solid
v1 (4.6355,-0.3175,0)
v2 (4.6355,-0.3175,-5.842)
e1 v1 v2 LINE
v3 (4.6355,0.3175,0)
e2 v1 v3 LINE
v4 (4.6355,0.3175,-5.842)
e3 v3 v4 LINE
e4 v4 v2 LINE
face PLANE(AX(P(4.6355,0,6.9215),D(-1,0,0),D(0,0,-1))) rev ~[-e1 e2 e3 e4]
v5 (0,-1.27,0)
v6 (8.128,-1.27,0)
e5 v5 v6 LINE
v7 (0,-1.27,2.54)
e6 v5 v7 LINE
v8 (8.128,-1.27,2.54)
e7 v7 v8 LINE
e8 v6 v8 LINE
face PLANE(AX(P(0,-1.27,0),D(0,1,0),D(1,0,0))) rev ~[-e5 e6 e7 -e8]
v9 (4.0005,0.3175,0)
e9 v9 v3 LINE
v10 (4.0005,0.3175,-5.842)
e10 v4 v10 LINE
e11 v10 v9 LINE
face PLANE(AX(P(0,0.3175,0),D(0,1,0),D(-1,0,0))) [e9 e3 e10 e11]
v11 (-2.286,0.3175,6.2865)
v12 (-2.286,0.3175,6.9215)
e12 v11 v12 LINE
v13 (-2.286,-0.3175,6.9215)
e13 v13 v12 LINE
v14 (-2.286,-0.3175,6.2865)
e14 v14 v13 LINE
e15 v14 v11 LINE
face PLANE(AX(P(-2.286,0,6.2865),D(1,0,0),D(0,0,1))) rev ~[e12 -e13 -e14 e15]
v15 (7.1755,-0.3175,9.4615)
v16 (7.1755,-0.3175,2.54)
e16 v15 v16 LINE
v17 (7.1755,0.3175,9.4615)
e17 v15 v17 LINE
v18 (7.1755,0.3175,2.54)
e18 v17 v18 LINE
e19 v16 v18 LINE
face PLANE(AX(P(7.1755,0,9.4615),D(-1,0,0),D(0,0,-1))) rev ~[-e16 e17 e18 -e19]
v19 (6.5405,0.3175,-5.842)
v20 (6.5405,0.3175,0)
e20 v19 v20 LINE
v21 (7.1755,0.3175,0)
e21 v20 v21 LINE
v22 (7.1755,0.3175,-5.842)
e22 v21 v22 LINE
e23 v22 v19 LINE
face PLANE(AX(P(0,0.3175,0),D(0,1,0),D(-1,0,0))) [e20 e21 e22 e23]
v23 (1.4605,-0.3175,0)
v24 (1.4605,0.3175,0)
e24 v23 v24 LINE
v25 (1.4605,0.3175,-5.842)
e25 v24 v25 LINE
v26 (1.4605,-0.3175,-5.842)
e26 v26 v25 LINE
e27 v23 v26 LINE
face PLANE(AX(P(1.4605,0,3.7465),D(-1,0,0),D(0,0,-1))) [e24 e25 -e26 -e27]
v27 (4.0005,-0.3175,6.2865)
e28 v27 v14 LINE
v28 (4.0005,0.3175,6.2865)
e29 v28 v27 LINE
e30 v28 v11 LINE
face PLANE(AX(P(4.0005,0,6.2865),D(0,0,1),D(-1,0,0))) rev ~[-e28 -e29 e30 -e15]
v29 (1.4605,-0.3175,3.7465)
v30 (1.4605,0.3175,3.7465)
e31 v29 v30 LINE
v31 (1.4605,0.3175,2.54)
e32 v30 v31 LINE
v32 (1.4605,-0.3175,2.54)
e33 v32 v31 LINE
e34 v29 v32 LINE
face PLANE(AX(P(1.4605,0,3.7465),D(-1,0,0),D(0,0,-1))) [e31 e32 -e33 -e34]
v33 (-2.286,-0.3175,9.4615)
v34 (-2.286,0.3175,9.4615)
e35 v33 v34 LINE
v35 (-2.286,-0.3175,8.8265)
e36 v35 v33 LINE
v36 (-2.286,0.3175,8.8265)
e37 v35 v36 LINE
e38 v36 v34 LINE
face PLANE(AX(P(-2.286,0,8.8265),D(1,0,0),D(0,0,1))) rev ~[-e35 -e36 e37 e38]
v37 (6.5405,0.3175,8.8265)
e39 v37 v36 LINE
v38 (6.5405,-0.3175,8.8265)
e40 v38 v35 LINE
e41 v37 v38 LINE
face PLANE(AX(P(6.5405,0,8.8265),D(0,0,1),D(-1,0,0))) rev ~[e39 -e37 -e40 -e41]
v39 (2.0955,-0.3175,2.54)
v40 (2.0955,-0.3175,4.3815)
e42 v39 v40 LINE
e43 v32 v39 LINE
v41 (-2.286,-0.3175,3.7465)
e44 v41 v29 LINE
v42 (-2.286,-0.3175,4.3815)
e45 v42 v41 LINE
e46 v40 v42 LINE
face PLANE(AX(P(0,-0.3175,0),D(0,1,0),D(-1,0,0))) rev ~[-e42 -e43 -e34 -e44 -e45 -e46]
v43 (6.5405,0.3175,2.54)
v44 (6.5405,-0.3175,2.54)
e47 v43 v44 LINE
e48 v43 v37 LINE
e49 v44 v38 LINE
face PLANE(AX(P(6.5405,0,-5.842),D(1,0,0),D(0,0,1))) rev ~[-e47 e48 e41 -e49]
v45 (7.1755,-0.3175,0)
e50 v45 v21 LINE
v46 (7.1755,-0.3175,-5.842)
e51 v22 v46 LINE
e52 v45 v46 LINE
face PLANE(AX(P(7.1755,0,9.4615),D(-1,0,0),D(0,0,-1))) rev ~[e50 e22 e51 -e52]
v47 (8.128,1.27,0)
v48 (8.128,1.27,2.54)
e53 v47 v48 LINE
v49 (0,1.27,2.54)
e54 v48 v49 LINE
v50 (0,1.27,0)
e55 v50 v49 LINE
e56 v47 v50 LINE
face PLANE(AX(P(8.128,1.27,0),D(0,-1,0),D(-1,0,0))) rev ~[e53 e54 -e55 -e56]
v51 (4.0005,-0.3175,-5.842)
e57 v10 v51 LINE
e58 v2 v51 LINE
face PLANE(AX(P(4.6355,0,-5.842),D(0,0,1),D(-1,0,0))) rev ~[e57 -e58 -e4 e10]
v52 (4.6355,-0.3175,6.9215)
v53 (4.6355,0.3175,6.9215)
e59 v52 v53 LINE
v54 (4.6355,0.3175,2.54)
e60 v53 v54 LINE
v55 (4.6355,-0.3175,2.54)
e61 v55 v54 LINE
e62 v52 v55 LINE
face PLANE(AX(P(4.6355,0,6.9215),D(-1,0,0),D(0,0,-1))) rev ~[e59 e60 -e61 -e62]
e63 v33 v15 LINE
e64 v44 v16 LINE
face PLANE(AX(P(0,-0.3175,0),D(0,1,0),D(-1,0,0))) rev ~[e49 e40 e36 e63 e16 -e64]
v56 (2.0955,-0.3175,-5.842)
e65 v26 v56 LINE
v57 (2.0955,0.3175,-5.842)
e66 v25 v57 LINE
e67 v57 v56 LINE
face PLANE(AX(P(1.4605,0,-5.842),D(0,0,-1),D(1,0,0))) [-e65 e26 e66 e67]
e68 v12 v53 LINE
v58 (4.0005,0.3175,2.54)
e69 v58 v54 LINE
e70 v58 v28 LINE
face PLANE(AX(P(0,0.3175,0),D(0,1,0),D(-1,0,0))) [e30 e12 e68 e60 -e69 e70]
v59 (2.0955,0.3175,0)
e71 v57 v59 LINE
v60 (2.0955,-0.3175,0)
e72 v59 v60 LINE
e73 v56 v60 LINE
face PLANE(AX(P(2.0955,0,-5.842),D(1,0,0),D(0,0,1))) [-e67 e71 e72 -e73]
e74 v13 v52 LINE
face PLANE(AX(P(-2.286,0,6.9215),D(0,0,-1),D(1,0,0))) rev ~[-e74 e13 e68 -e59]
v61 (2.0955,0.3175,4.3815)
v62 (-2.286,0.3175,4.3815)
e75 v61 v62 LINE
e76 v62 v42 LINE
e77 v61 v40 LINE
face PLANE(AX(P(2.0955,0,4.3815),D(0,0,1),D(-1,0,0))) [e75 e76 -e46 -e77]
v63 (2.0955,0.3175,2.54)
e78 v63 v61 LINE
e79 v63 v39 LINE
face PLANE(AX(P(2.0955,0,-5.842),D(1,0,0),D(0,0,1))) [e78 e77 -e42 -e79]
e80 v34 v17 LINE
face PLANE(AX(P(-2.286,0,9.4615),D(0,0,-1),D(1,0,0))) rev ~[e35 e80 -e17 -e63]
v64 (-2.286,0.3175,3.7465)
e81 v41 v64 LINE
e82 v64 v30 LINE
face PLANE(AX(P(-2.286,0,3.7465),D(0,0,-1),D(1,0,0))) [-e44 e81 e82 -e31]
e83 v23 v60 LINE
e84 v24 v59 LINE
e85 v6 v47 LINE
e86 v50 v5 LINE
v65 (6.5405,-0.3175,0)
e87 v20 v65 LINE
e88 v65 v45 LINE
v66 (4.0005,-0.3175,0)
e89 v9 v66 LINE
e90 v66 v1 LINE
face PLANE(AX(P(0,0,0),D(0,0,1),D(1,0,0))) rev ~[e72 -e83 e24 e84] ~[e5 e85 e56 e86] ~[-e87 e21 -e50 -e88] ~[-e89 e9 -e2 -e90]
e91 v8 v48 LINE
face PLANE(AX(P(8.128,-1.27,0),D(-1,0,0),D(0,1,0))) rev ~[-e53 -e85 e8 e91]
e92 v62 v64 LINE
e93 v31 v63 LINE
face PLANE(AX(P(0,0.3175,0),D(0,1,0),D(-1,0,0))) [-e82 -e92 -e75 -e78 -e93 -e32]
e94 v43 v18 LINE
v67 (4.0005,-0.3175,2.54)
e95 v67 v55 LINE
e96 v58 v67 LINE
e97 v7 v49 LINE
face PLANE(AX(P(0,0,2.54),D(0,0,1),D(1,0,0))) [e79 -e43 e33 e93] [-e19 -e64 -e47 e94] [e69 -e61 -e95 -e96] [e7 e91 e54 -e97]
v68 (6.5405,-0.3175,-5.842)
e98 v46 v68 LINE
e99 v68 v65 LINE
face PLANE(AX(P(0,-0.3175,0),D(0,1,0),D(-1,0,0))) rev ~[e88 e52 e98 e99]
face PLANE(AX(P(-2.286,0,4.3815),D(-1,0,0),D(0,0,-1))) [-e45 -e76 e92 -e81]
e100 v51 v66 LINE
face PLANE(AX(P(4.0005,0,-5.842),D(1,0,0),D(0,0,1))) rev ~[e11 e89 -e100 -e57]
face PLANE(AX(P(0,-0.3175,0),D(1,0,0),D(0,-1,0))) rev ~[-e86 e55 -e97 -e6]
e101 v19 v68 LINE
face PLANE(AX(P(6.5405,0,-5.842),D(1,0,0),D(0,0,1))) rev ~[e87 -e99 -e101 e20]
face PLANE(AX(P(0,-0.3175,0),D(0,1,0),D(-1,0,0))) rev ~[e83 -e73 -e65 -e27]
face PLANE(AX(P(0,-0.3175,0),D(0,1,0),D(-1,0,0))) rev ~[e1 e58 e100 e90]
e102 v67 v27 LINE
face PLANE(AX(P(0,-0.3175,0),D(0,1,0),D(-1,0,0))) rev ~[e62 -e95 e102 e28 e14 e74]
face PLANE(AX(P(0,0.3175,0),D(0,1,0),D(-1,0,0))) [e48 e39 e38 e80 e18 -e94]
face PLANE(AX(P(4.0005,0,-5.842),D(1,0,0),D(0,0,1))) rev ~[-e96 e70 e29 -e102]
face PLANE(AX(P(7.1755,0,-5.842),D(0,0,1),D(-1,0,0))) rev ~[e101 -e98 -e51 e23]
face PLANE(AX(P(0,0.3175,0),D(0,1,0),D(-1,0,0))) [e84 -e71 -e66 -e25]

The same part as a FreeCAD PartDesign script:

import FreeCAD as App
import Part
import Sketcher

V = App.Vector
Q = App.Units.Quantity


def add_polygon(sketch, points):
    """Adds a closed chain of lines whose ends are joined by coincident constraints."""
    first, n = sketch.GeometryCount, len(points)
    for a, b in zip(points, points[1:] + points[:1]):
        sketch.addGeometry(Part.LineSegment(App.Vector(*a, 0), App.Vector(*b, 0)), False)
    for i in range(n):
        sketch.addConstraint(Sketcher.Constraint("Coincident", first + i, 2, first + (i + 1) % n, 1))

doc = App.newDocument("Part")
body = doc.addObject("PartDesign::Body", "Body")
body.AllowCompound = True

# Sketch on XZ plane
sketch1 = body.newObject("Sketcher::SketchObject", "Sketch")
sketch1.AttachmentSupport = (doc.getObject("XZ_Plane"), [""])
sketch1.MapMode = "FlatFace"
add_polygon(sketch1, [(2.1, -5.8), (1.5, -5.8), (1.5, 3.7), (-2.3, 3.7), (-2.3, 4.4), (2.1, 4.4)])  # lines 0-5
add_polygon(sketch1, [(4, 6.3), (-2.3, 6.3), (-2.3, 6.9), (4.6, 6.9), (4.6, -5.8), (4, -5.8)])  # lines 6-11
add_polygon(sketch1, [(6.5, 8.8), (-2.3, 8.8), (-2.3, 9.5), (7.2, 9.5), (7.2, -5.8), (6.5, -5.8)])  # lines 12-17
sketch1.addConstraint(Sketcher.Constraint("Horizontal", 0))
sketch1.addConstraint(Sketcher.Constraint("Vertical", 1))
sketch1.addConstraint(Sketcher.Constraint("Horizontal", 2))
sketch1.addConstraint(Sketcher.Constraint("Vertical", 3))
sketch1.addConstraint(Sketcher.Constraint("Horizontal", 4))
sketch1.addConstraint(Sketcher.Constraint("Vertical", 5))
sketch1.addConstraint(Sketcher.Constraint("Horizontal", 6))
sketch1.addConstraint(Sketcher.Constraint("Vertical", 7))
sketch1.addConstraint(Sketcher.Constraint("Horizontal", 8))
sketch1.addConstraint(Sketcher.Constraint("Vertical", 9))
sketch1.addConstraint(Sketcher.Constraint("Horizontal", 10))
sketch1.addConstraint(Sketcher.Constraint("Vertical", 11))
sketch1.addConstraint(Sketcher.Constraint("Horizontal", 12))
sketch1.addConstraint(Sketcher.Constraint("Vertical", 13))
sketch1.addConstraint(Sketcher.Constraint("Horizontal", 14))
sketch1.addConstraint(Sketcher.Constraint("Vertical", 15))
sketch1.addConstraint(Sketcher.Constraint("Horizontal", 16))
sketch1.addConstraint(Sketcher.Constraint("Vertical", 17))
sketch1.addConstraint(Sketcher.Constraint("Horizontal", 5, 2, 9, 2))
sketch1.addConstraint(Sketcher.Constraint("Horizontal", 10, 2, 15, 2))
sketch1.addConstraint(Sketcher.Constraint("Vertical", 3, 2, 6, 2))
sketch1.addConstraint(Sketcher.Constraint("Vertical", 7, 2, 12, 2))
sketch1.addConstraint(Sketcher.Constraint("Equal", 0, 10))
sketch1.addConstraint(Sketcher.Constraint("Equal", 10, 16))
sketch1.addConstraint(Sketcher.Constraint("Equal", 16, 3))
sketch1.addConstraint(Sketcher.Constraint("Equal", 3, 7))
sketch1.addConstraint(Sketcher.Constraint("Equal", 7, 13))
sketch1.addConstraint(Sketcher.Constraint("DistanceY", 2, 2, 6, 2, Q("0.1 in")))
sketch1.addConstraint(Sketcher.Constraint("DistanceX", 4, 2, 8, 2, Q("0.1 in")))
sketch1.addConstraint(Sketcher.Constraint("DistanceY", 6, 2, 12, 2, Q("0.1 in")))
sketch1.addConstraint(Sketcher.Constraint("DistanceX", 8, 2, 14, 2, Q("0.1 in")))
sketch1.addConstraint(Sketcher.Constraint("DistanceX", 0, 2, 0, 1, Q("0.025 in")))
sketch1.addConstraint(Sketcher.Constraint("DistanceY", 0, 2, -1, 1, Q("0.23 in")))
sketch1.addConstraint(Sketcher.Constraint("DistanceX", 2, 2, -1, 1, Q("0.09 in")))
sketch1.addConstraint(Sketcher.Constraint("DistanceX", 2, 2, 2, 1, Q("0.1475 in")))
sketch1.addConstraint(Sketcher.Constraint("DistanceY", 1, 1, 1, 2, Q("0.3775 in")))
pad1 = body.newObject("PartDesign::Pad", "Pad")
pad1.Profile = sketch1
pad1.Length = Q("0.025 in")
pad1.Midplane = True

# Sketch on XY plane
sketch2 = body.newObject("Sketcher::SketchObject", "Sketch001")
sketch2.AttachmentSupport = (doc.getObject("XY_Plane"), [""])
sketch2.MapMode = "FlatFace"
add_polygon(sketch2, [(0, -1.3), (8.1, -1.3), (8.1, 1.3), (0, 1.3)])  # lines 0-3
sketch2.addConstraint(Sketcher.Constraint("Horizontal", 0))
sketch2.addConstraint(Sketcher.Constraint("Vertical", 1))
sketch2.addConstraint(Sketcher.Constraint("Horizontal", 2))
sketch2.addConstraint(Sketcher.Constraint("Vertical", 3))
sketch2.addConstraint(Sketcher.Constraint("Symmetric", 2, 2, 3, 2, -1, 1))
sketch2.addConstraint(Sketcher.Constraint("DistanceY", 1, 1, 1, 2, Q("0.1 in")))
sketch2.addConstraint(Sketcher.Constraint("DistanceX", 0, 1, 0, 2, Q("0.32 in")))
pad2 = body.newObject("PartDesign::Pad", "Pad001")
pad2.Profile = sketch2
pad2.Length = Q("0.1 in")

doc.recompute()
